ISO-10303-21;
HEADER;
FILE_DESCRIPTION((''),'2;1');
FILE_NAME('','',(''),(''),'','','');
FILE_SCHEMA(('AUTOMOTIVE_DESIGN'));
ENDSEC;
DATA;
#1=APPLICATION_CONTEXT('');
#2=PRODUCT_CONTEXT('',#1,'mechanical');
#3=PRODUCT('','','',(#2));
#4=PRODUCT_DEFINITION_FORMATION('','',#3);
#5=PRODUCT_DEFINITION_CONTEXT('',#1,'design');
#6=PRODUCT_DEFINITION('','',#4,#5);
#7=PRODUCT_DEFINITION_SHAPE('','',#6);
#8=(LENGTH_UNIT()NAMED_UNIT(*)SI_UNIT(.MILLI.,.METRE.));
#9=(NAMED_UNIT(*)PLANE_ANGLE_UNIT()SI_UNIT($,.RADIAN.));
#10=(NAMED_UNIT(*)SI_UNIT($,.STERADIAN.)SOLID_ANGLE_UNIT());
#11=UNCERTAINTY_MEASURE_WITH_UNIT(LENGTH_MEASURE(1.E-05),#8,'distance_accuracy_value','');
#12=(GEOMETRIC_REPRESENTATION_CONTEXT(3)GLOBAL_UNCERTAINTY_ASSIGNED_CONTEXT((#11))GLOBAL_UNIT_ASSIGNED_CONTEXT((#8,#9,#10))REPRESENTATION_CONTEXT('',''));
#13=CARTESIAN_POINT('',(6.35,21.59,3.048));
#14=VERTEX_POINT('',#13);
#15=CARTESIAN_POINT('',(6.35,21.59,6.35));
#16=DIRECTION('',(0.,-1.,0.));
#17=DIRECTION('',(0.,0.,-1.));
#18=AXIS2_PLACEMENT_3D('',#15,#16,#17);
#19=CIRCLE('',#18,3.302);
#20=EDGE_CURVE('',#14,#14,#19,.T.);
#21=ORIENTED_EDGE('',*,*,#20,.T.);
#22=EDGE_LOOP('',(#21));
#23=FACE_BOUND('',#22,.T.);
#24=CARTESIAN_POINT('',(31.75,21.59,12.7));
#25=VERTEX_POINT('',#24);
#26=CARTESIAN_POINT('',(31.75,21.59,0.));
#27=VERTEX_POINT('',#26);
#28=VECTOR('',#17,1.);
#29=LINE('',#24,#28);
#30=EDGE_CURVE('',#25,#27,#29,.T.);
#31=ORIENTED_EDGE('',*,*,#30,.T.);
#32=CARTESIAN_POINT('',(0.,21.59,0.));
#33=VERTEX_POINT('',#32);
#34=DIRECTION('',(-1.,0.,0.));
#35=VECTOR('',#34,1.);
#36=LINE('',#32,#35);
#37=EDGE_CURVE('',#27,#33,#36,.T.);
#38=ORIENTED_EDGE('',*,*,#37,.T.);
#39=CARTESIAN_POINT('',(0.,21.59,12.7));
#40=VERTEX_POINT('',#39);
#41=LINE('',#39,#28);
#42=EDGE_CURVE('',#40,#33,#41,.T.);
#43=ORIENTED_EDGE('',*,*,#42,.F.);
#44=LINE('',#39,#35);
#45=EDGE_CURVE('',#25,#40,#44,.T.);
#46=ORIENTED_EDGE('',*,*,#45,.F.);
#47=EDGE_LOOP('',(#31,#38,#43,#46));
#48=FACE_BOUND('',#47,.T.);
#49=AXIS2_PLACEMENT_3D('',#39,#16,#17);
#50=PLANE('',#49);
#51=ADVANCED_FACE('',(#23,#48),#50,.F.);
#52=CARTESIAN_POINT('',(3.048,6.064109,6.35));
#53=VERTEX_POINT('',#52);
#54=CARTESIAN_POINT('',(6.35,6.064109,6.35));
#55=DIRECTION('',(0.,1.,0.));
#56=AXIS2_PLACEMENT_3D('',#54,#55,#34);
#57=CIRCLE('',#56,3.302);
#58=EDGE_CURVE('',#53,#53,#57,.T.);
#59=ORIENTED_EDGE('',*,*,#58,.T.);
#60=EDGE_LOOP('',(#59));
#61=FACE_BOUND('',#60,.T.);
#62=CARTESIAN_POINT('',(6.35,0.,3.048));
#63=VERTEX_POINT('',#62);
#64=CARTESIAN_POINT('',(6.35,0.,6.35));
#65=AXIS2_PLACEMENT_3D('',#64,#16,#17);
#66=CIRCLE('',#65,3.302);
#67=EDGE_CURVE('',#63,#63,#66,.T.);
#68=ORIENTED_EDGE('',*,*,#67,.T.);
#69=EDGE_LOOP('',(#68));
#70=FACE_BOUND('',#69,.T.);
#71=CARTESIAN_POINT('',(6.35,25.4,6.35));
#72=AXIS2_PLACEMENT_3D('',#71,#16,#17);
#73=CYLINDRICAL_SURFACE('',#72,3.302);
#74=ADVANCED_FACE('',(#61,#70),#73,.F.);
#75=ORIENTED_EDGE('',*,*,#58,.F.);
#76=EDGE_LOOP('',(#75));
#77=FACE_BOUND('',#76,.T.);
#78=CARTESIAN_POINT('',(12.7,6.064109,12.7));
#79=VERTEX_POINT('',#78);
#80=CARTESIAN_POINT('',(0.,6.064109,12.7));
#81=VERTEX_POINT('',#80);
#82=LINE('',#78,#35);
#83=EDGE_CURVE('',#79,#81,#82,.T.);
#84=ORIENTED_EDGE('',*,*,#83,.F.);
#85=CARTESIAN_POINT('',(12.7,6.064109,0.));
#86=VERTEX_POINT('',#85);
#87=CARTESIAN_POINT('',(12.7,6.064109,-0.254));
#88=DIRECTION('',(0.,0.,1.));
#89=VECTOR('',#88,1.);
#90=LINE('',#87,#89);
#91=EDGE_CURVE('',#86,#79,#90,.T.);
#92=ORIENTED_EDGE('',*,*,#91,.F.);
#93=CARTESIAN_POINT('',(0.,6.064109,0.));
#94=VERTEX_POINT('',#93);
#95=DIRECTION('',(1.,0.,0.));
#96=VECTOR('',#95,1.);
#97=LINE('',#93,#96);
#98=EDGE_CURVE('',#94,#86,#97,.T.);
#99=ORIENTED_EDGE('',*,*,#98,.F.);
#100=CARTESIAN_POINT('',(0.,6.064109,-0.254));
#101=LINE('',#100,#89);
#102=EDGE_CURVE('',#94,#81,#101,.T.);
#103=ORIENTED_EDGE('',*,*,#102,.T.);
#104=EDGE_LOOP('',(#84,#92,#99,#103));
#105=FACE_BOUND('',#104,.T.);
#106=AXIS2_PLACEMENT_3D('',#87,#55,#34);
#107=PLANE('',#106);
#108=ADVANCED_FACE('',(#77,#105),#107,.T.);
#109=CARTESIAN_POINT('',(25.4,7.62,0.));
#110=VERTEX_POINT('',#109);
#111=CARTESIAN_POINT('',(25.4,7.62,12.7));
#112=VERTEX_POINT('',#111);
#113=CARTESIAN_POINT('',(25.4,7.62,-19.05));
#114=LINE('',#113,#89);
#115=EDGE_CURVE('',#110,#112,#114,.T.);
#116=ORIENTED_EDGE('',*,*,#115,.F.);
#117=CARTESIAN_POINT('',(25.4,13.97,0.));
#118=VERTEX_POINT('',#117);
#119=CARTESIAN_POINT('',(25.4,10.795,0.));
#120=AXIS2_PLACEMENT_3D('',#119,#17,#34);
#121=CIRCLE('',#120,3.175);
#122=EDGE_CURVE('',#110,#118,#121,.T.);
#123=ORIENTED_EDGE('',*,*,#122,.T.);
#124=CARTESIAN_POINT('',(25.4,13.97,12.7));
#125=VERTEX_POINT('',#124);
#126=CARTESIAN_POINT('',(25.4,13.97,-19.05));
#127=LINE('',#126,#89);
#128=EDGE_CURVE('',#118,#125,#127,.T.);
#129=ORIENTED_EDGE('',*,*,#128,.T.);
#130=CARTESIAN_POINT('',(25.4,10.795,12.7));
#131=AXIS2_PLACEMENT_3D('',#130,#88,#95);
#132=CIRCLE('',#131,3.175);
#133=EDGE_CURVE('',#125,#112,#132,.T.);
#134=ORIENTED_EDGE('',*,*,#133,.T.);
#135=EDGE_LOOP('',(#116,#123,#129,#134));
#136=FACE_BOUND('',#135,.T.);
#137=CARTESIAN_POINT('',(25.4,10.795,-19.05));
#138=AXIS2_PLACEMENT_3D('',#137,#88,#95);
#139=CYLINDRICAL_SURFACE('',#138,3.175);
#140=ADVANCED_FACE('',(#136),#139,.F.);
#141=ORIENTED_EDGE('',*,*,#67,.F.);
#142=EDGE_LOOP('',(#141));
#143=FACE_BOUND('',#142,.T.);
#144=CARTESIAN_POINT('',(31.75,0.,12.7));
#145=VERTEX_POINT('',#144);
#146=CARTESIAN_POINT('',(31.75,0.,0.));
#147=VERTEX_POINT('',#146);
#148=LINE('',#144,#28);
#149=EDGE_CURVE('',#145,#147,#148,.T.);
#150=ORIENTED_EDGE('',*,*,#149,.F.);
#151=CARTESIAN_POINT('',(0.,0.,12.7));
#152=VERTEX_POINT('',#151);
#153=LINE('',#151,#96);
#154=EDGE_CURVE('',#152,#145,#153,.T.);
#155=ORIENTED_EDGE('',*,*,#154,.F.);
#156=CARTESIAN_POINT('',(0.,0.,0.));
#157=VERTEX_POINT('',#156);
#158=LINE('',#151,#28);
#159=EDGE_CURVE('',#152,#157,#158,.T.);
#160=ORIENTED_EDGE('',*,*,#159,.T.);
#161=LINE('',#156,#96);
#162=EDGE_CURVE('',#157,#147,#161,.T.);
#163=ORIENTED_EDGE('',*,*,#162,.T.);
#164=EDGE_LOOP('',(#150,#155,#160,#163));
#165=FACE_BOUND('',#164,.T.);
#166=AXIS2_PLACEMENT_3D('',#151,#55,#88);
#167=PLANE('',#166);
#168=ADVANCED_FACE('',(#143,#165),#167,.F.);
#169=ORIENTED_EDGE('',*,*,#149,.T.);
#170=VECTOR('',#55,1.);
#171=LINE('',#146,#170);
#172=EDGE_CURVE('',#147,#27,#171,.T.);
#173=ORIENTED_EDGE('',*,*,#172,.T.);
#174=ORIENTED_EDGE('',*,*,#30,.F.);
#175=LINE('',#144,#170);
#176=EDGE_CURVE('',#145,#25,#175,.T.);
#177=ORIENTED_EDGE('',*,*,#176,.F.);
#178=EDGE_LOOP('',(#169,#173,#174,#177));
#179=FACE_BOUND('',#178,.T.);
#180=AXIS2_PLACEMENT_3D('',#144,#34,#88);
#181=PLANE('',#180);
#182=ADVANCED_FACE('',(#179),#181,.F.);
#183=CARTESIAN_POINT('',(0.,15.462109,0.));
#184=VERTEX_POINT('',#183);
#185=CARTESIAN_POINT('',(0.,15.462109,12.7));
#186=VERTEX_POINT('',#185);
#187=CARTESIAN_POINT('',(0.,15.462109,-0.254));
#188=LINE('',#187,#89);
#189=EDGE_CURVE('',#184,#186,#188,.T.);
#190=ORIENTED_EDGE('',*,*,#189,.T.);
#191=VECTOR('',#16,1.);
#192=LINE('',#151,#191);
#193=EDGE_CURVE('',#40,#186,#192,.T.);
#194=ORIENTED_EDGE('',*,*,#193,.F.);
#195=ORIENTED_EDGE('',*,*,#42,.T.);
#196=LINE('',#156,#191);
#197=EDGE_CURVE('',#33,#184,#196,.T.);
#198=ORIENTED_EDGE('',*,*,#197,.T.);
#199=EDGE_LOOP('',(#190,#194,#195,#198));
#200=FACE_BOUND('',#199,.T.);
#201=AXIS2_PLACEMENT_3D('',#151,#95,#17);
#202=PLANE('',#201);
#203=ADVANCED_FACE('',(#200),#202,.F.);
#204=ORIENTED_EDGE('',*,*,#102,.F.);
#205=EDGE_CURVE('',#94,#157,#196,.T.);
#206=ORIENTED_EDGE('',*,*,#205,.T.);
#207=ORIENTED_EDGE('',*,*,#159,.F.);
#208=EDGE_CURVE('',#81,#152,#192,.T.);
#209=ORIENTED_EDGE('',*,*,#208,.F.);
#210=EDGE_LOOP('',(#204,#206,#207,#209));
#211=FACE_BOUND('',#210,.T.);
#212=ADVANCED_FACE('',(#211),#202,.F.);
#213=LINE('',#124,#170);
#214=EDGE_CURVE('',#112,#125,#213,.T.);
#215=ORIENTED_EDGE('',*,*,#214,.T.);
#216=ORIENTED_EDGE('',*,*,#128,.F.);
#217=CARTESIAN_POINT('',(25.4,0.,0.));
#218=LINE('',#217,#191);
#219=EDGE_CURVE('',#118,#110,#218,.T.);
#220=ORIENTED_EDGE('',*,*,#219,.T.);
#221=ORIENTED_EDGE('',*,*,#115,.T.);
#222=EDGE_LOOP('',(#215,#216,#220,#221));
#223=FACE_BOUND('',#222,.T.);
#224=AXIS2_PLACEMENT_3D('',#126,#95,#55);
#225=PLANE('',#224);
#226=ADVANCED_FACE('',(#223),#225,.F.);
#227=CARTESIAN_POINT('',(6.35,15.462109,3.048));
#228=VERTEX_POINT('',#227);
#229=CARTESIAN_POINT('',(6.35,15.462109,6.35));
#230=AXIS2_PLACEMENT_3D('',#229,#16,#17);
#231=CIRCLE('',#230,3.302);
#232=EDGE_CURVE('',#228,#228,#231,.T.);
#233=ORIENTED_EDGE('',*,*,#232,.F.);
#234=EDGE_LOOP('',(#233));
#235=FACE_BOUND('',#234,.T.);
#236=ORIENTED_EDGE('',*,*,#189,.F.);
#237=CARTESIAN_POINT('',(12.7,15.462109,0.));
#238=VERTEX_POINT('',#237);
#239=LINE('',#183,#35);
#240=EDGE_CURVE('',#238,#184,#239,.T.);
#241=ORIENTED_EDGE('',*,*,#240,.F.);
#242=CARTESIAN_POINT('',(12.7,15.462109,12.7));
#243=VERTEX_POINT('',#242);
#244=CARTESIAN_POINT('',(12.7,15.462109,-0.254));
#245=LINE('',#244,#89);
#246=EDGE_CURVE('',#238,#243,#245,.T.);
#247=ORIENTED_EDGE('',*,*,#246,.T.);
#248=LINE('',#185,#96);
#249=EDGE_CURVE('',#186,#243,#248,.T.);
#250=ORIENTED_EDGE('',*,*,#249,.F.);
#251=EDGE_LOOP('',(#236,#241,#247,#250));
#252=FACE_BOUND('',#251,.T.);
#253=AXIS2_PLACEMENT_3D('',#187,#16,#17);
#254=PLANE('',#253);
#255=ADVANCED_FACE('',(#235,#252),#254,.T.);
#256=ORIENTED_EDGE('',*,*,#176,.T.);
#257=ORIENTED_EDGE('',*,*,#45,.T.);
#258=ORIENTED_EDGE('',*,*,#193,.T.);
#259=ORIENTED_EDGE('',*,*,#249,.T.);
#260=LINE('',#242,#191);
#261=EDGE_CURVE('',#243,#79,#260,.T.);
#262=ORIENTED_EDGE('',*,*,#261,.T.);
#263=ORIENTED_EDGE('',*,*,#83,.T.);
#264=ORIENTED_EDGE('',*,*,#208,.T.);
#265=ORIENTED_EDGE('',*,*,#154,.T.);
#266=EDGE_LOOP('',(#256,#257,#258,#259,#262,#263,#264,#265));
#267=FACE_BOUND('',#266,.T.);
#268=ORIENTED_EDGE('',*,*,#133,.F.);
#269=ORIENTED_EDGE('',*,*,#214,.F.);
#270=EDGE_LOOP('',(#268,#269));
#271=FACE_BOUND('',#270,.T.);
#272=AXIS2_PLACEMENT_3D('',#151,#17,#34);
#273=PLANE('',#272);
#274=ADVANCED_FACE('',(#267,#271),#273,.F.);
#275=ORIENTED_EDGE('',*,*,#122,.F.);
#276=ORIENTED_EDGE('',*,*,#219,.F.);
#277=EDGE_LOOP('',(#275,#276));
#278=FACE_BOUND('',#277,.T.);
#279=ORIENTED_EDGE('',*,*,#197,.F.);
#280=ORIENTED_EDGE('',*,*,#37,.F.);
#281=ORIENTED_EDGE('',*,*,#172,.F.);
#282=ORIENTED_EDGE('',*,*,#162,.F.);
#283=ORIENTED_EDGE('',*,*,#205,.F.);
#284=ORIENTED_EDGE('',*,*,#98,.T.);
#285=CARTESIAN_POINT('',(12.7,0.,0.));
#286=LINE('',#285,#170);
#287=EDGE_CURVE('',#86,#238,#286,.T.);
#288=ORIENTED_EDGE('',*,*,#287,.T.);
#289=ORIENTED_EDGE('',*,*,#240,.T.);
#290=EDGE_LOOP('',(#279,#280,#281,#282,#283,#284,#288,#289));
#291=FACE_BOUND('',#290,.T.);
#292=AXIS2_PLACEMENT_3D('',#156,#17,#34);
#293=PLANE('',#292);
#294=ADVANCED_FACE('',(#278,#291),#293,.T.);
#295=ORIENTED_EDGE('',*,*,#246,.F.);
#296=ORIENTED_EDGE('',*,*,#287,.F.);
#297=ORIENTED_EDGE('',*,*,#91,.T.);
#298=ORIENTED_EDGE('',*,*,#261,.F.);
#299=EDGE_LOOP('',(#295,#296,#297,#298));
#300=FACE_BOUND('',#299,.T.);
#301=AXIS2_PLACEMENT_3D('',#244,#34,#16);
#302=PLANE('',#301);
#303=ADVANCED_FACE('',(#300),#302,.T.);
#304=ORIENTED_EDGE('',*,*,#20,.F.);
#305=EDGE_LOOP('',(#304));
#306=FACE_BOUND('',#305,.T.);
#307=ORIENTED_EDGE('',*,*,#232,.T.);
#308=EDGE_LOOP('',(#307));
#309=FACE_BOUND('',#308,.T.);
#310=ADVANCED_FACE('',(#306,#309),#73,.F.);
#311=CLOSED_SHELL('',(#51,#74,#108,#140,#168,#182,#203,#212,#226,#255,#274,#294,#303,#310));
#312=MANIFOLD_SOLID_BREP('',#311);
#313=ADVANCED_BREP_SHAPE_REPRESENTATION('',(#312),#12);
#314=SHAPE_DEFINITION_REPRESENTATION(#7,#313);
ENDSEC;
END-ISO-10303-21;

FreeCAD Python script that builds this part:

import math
import FreeCAD as App
import Part
import Sketcher

V = App.Vector
Q = App.Units.Quantity

doc = App.newDocument("Part")
body = doc.addObject("PartDesign::Body", "Body")

sketch1 = body.newObject("Sketcher::SketchObject", "Sketch")
sketch1.AttachmentSupport = (doc.getObject("XY_Plane"), [""])
sketch1.MapMode = "FlatFace"
sketch1.addGeometry([
    Part.LineSegment(V(0, 22, 0), V(0, 0, 0)),
    Part.LineSegment(V(0, 0, 0), V(32, 0, 0)),
    Part.LineSegment(V(32, 0, 0), V(32, 22, 0)),
    Part.LineSegment(V(32, 22, 0), V(0, 22, 0)),
], False)
sketch1.addConstraint([
    Sketcher.Constraint("Coincident", 0, 2, 1, 1),
    Sketcher.Constraint("Coincident", 1, 2, 2, 1),
    Sketcher.Constraint("Coincident", 2, 2, 3, 1),
    Sketcher.Constraint("Coincident", 3, 2, 0, 1),
    Sketcher.Constraint("Vertical", 0),
    Sketcher.Constraint("Horizontal", 1),
    Sketcher.Constraint("Vertical", 2),
    Sketcher.Constraint("Horizontal", 3),
    Sketcher.Constraint("Coincident", 0, 2, -1, 1),
    Sketcher.Constraint("DistanceX", 1, 1, 1, 2, Q("1.25 in")),
    Sketcher.Constraint("DistanceY", 0, 2, 0, 1, Q("0.85 in")),
])
pad1 = body.newObject("PartDesign::Pad", "Pad")
pad1.Profile = sketch1
pad1.Length = Q("0.5 in")

sketch2 = body.newObject("Sketcher::SketchObject", "Sketch001")
sketch2.AttachmentSupport = (doc.getObject("XY_Plane"), [""])
sketch2.MapMode = "FlatFace"
sketch2.AttachmentOffset = App.Placement(V(0, 0, 0.5 * 25.4), App.Rotation())
sketch2.addGeometry([
    Part.LineSegment(V(0, 15, 0), V(0, 6, 0)),
    Part.LineSegment(V(0, 6, 0), V(13, 6, 0)),
    Part.LineSegment(V(13, 6, 0), V(13, 15, 0)),
    Part.LineSegment(V(13, 15, 0), V(0, 15, 0)),
], False)
sketch2.addConstraint([
    Sketcher.Constraint("Coincident", 0, 2, 1, 1),
    Sketcher.Constraint("Coincident", 1, 2, 2, 1),
    Sketcher.Constraint("Coincident", 2, 2, 3, 1),
    Sketcher.Constraint("Coincident", 3, 2, 0, 1),
    Sketcher.Constraint("Vertical", 0),
    Sketcher.Constraint("Horizontal", 1),
    Sketcher.Constraint("Vertical", 2),
    Sketcher.Constraint("Horizontal", 3),
    Sketcher.Constraint("PointOnObject", 0, 2, -2),
    Sketcher.Constraint("DistanceX", 1, 1, 1, 2, Q("0.5 in")),
    Sketcher.Constraint("DistanceY", 0, 2, 0, 1, Q("0.37 in")),
    Sketcher.Constraint("DistanceY", -1, 1, 0, 2, Q("6.064109 mm")),
])
pocket1 = body.newObject("PartDesign::Pocket", "Pocket")
pocket1.Profile = sketch2
pocket1.Length = Q("0.51 in")

sketch3 = body.newObject("Sketcher::SketchObject", "Sketch002")
sketch3.AttachmentSupport = (doc.getObject("XZ_Plane"), [""])
sketch3.MapMode = "FlatFace"
sketch3.addGeometry(Part.Circle(V(6.3, 6.3, 0), V(0, 0, 1), 3.3), False)
sketch3.addConstraint([
    Sketcher.Constraint("Diameter", 0, Q("0.26 in")),
    Sketcher.Constraint("DistanceX", -1, 1, 0, 3, Q("0.25 in")),
    Sketcher.Constraint("DistanceY", -1, 1, 0, 3, Q("0.25 in")),
])
pocket2 = body.newObject("PartDesign::Pocket", "Pocket001")
pocket2.Profile = sketch3
pocket2.Length = Q("1 in")

sketch4 = body.newObject("Sketcher::SketchObject", "Sketch003")
sketch4.AttachmentSupport = (doc.getObject("XY_Plane"), [""])
sketch4.MapMode = "FlatFace"
sketch4.AttachmentOffset = App.Placement(V(0, 0, 0.5 * 25.4), App.Rotation())
sketch4.addGeometry([
    Part.LineSegment(V(25.4, 7.6, 0), V(25.4, 14, 0)),
    Part.ArcOfCircle(Part.Circle(V(25.4, 10.8, 0), V(0, 0, 1), 3.2), math.radians(90), math.radians(270)),
], False)
sketch4.addConstraint([
    Sketcher.Constraint("Coincident", 0, 1, 1, 2),
    Sketcher.Constraint("Coincident", 1, 1, 0, 2),
    Sketcher.Constraint("Vertical", 0),
    Sketcher.Constraint("Vertical", 1, 3, 0, 1),
    Sketcher.Constraint("DistanceX", -1, 1, 1, 3, Q("1 in")),
    Sketcher.Constraint("Radius", 1, Q("0.125 in")),
    Sketcher.Constraint("DistanceY", -1, 1, 0, 1, Q("0.3 in")),
])
pocket3 = body.newObject("PartDesign::Pocket", "Pocket002")
pocket3.Profile = sketch4
pocket3.Length = Q("1.25 in")

doc.recompute()
